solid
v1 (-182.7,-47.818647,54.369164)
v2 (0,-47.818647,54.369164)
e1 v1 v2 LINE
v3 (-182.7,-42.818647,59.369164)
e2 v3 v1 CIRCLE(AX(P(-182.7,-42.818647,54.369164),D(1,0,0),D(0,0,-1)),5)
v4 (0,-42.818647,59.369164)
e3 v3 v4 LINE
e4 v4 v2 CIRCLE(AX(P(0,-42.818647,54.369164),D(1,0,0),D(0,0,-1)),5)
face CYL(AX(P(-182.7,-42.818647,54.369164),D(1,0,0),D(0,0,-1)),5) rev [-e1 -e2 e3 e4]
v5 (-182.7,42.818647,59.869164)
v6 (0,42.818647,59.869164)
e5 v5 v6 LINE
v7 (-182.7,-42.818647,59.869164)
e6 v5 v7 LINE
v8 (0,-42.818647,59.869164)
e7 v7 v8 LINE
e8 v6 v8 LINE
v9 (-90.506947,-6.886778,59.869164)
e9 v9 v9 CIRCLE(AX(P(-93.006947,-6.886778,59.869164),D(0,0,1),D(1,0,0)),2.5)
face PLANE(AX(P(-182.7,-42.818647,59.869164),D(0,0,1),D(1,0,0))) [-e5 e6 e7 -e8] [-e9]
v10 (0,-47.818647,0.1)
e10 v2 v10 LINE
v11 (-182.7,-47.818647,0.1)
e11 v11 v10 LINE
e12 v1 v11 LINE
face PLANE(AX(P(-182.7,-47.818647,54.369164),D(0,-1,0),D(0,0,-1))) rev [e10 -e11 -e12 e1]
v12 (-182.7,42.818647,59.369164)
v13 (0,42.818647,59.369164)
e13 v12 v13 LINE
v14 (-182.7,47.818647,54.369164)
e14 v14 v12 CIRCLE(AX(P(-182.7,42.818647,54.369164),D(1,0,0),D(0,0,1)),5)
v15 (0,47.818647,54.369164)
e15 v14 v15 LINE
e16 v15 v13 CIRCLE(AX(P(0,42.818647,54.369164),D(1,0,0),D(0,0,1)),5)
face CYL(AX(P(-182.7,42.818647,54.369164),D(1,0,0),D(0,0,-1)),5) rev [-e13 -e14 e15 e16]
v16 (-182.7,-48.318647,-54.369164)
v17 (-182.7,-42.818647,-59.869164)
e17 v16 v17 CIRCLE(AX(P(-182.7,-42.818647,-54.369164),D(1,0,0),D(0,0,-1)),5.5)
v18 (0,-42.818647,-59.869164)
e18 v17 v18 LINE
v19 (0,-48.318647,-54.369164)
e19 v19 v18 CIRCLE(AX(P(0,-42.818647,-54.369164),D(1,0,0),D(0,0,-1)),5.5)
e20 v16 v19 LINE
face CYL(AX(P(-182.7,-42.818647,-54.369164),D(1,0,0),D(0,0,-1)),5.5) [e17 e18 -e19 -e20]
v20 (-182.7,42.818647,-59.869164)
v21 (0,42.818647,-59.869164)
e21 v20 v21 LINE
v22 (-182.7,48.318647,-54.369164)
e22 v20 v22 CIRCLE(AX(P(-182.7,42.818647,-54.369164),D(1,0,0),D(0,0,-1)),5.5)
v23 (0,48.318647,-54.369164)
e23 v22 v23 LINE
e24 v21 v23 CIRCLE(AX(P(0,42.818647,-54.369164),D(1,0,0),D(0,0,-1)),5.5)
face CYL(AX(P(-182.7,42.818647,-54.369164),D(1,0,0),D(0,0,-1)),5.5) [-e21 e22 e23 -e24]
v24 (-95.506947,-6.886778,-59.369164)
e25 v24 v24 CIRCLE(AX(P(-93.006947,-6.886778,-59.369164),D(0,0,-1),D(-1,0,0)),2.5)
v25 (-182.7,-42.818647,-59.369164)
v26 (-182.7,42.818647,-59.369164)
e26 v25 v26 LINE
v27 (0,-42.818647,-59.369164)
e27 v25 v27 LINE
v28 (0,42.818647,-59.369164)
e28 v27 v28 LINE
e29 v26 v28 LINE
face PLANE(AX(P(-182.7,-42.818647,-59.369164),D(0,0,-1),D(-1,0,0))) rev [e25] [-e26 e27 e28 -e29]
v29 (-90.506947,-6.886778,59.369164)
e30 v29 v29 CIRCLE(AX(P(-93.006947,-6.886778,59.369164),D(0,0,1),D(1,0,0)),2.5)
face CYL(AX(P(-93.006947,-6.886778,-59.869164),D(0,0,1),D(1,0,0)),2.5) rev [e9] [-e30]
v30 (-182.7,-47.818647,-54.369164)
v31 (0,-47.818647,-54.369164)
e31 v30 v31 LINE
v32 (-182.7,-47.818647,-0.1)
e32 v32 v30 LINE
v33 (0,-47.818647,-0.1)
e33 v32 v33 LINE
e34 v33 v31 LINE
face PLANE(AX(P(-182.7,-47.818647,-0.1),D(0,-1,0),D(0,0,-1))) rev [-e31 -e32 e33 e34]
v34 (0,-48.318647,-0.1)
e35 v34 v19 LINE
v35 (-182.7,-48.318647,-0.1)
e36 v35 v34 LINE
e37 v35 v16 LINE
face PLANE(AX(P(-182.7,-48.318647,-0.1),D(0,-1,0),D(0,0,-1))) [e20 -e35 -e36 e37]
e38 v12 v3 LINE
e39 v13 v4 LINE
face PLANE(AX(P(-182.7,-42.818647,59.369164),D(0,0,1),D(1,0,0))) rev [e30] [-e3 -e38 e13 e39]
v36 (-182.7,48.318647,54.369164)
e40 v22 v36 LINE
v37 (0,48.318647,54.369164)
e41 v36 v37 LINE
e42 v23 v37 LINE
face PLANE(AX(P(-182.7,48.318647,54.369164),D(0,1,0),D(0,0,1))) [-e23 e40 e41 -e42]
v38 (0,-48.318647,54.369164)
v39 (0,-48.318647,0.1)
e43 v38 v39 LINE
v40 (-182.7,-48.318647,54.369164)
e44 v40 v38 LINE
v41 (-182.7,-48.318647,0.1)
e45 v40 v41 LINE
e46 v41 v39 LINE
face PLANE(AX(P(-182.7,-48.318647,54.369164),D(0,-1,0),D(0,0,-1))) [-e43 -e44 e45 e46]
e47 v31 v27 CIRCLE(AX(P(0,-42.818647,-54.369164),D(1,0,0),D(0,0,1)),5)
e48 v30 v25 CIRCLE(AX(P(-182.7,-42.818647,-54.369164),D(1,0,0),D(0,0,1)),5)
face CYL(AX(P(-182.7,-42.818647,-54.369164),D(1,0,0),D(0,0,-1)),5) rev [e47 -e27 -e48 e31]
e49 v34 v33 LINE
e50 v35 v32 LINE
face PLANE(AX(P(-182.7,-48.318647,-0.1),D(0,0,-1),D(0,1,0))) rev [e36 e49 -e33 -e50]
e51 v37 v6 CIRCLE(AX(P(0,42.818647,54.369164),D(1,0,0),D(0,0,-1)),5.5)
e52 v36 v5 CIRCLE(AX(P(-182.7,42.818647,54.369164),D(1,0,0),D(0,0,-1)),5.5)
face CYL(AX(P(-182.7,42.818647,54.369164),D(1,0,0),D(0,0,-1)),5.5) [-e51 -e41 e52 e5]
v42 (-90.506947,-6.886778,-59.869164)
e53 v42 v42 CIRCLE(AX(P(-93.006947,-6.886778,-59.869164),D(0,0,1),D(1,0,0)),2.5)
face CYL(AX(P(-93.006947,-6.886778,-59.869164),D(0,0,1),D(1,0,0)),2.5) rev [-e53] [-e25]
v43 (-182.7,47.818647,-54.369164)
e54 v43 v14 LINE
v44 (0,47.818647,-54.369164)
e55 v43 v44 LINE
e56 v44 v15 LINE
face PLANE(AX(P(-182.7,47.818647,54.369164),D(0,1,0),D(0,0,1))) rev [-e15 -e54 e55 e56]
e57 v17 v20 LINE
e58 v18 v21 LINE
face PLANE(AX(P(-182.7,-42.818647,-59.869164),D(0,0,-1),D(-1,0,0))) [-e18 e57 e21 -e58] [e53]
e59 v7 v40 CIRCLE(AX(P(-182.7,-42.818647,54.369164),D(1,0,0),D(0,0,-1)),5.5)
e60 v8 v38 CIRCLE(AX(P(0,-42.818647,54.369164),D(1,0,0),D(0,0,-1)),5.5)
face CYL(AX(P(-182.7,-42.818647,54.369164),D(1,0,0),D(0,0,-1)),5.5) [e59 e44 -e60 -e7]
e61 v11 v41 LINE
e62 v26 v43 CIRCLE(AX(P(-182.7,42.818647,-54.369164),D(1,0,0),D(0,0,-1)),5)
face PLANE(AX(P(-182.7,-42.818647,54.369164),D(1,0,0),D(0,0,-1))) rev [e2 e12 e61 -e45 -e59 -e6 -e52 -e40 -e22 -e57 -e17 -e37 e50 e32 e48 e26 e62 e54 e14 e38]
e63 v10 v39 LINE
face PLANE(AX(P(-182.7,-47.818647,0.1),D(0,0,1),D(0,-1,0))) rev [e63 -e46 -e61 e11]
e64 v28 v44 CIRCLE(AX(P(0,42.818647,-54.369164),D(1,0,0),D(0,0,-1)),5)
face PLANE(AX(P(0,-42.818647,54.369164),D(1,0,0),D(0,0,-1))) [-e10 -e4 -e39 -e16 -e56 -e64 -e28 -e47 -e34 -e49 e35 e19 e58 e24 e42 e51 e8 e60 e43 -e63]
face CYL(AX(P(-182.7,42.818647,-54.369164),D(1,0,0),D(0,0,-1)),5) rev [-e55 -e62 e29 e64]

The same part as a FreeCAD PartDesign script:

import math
import FreeCAD as App
import Part
import Sketcher
Q = App.Units.Quantity

doc = App.newDocument("Part")
body = doc.addObject("PartDesign::Body", "Body")

sketch1 = body.newObject("Sketcher::SketchObject", "Sketch")
sketch1.AttachmentSupport = (doc.getObject("YZ_Plane"), [""])
sketch1.MapMode = "FlatFace"
sketch1.addGeometry(Part.LineSegment(App.Vector(-47.8, -54.4, 0), App.Vector(-47.8, -0.1, 0)), False)
sketch1.addGeometry(Part.LineSegment(App.Vector(-47.8, -0.1, 0), App.Vector(-48.3, -0.1, 0)), False)
sketch1.addGeometry(Part.LineSegment(App.Vector(-48.3, -0.1, 0), App.Vector(-48.3, -54.4, 0)), False)
sketch1.addGeometry(Part.ArcOfCircle(Part.Circle(App.Vector(-42.8, -54.4, 0), App.Vector(0, 0, 1), 5.5), math.radians(180), math.radians(270)), False)
sketch1.addGeometry(Part.LineSegment(App.Vector(-42.8, -59.9, 0), App.Vector(42.8, -59.9, 0)), False)
sketch1.addGeometry(Part.ArcOfCircle(Part.Circle(App.Vector(42.8, -54.4, 0), App.Vector(0, 0, 1), 5.5), math.radians(-90), math.radians(0)), False)
sketch1.addGeometry(Part.LineSegment(App.Vector(48.3, -54.4, 0), App.Vector(48.3, 54.4, 0)), False)
sketch1.addGeometry(Part.ArcOfCircle(Part.Circle(App.Vector(42.8, 54.4, 0), App.Vector(0, 0, 1), 5.5), math.radians(0), math.radians(90)), False)
sketch1.addGeometry(Part.LineSegment(App.Vector(42.8, 59.9, 0), App.Vector(-42.8, 59.9, 0)), False)
sketch1.addGeometry(Part.ArcOfCircle(Part.Circle(App.Vector(-42.8, 54.4, 0), App.Vector(0, 0, 1), 5.5), math.radians(90), math.radians(180)), False)
sketch1.addGeometry(Part.LineSegment(App.Vector(-48.3, 54.4, 0), App.Vector(-48.3, 0.1, 0)), False)
sketch1.addGeometry(Part.LineSegment(App.Vector(-48.3, 0.1, 0), App.Vector(-47.8, 0.1, 0)), False)
sketch1.addGeometry(Part.LineSegment(App.Vector(-47.8, 0.1, 0), App.Vector(-47.8, 54.4, 0)), False)
sketch1.addGeometry(Part.ArcOfCircle(Part.Circle(App.Vector(-42.8, 54.4, 0), App.Vector(0, 0, 1), 5), math.radians(90), math.radians(180)), False)
sketch1.addGeometry(Part.LineSegment(App.Vector(-42.8, 59.4, 0), App.Vector(42.8, 59.4, 0)), False)
sketch1.addGeometry(Part.ArcOfCircle(Part.Circle(App.Vector(42.8, 54.4, 0), App.Vector(0, 0, 1), 5), math.radians(0), math.radians(90)), False)
sketch1.addGeometry(Part.LineSegment(App.Vector(47.8, 54.4, 0), App.Vector(47.8, -54.4, 0)), False)
sketch1.addGeometry(Part.ArcOfCircle(Part.Circle(App.Vector(42.8, -54.4, 0), App.Vector(0, 0, 1), 5), math.radians(-90), math.radians(0)), False)
sketch1.addGeometry(Part.LineSegment(App.Vector(42.8, -59.4, 0), App.Vector(-42.8, -59.4, 0)), False)
sketch1.addGeometry(Part.ArcOfCircle(Part.Circle(App.Vector(-42.8, -54.4, 0), App.Vector(0, 0, 1), 5), math.radians(180), math.radians(270)), False)
sketch1.addConstraint(Sketcher.Constraint("Coincident", 0, 2, 1, 1))
sketch1.addConstraint(Sketcher.Constraint("Coincident", 1, 2, 2, 1))
sketch1.addConstraint(Sketcher.Constraint("Tangent", 2, 2, 3, 1))
sketch1.addConstraint(Sketcher.Constraint("Tangent", 3, 2, 4, 1))
sketch1.addConstraint(Sketcher.Constraint("Tangent", 4, 2, 5, 1))
sketch1.addConstraint(Sketcher.Constraint("Tangent", 5, 2, 6, 1))
sketch1.addConstraint(Sketcher.Constraint("Tangent", 6, 2, 7, 1))
sketch1.addConstraint(Sketcher.Constraint("Tangent", 7, 2, 8, 1))
sketch1.addConstraint(Sketcher.Constraint("Tangent", 8, 2, 9, 1))
sketch1.addConstraint(Sketcher.Constraint("Tangent", 9, 2, 10, 1))
sketch1.addConstraint(Sketcher.Constraint("Coincident", 10, 2, 11, 1))
sketch1.addConstraint(Sketcher.Constraint("Coincident", 11, 2, 12, 1))
sketch1.addConstraint(Sketcher.Constraint("Tangent", 12, 2, 13, 2))
sketch1.addConstraint(Sketcher.Constraint("Tangent", 13, 1, 14, 1))
sketch1.addConstraint(Sketcher.Constraint("Tangent", 14, 2, 15, 2))
sketch1.addConstraint(Sketcher.Constraint("Tangent", 15, 1, 16, 1))
sketch1.addConstraint(Sketcher.Constraint("Tangent", 16, 2, 17, 2))
sketch1.addConstraint(Sketcher.Constraint("Tangent", 17, 1, 18, 1))
sketch1.addConstraint(Sketcher.Constraint("Tangent", 18, 2, 19, 2))
sketch1.addConstraint(Sketcher.Constraint("Tangent", 19, 1, 0, 1))
sketch1.addConstraint(Sketcher.Constraint("Vertical", 0))
sketch1.addConstraint(Sketcher.Constraint("Horizontal", 1))
sketch1.addConstraint(Sketcher.Constraint("Vertical", 2))
sketch1.addConstraint(Sketcher.Constraint("Horizontal", 4))
sketch1.addConstraint(Sketcher.Constraint("Vertical", 6))
sketch1.addConstraint(Sketcher.Constraint("Horizontal", 8))
sketch1.addConstraint(Sketcher.Constraint("Vertical", 10))
sketch1.addConstraint(Sketcher.Constraint("Horizontal", 11))
sketch1.addConstraint(Sketcher.Constraint("Vertical", 12))
sketch1.addConstraint(Sketcher.Constraint("Horizontal", 14))
sketch1.addConstraint(Sketcher.Constraint("Vertical", 16))
sketch1.addConstraint(Sketcher.Constraint("Horizontal", 18))
sketch1.addConstraint(Sketcher.Constraint("Coincident", 13, 3, 9, 3))
sketch1.addConstraint(Sketcher.Constraint("Coincident", 15, 3, 7, 3))
sketch1.addConstraint(Sketcher.Constraint("Coincident", 17, 3, 5, 3))
sketch1.addConstraint(Sketcher.Constraint("Coincident", 19, 3, 3, 3))
sketch1.addConstraint(Sketcher.Constraint("Equal", 3, 5))
sketch1.addConstraint(Sketcher.Constraint("Equal", 5, 7))
sketch1.addConstraint(Sketcher.Constraint("Equal", 7, 9))
sketch1.addConstraint(Sketcher.Constraint("Symmetric", 3, 3, 7, 3, -1, 1))
sketch1.addConstraint(Sketcher.Constraint("Symmetric", 1, 2, 10, 2, -1))
sketch1.addConstraint(Sketcher.Constraint("Radius", 13, Q("5 mm")))
sketch1.addConstraint(Sketcher.Constraint("Radius", 3, Q("5.5 mm")))
sketch1.addConstraint(Sketcher.Constraint("DistanceY", 0, 2, -1, 1, Q("0.1 mm")))
sketch1.addConstraint(Sketcher.Constraint("DistanceY", 6, 1, 6, 2, Q("108.738328 mm")))
sketch1.addConstraint(Sketcher.Constraint("DistanceX", 4, 1, 4, 2, Q("85.637293 mm")))
pad1 = body.newObject("PartDesign::Pad", "Pad")
pad1.Profile = sketch1
pad1.Length = 182.7
pad1.Reversed = True

sketch2 = body.newObject("Sketcher::SketchObject", "Sketch001")
sketch2.AttachmentSupport = (doc.getObject("XY_Plane"), [""])
sketch2.MapMode = "FlatFace"
sketch2.AttachmentOffset = App.Placement(App.Vector(0, 0, 59.869164), App.Rotation())
sketch2.addGeometry(Part.Circle(App.Vector(-93, -6.9, 0), App.Vector(0, 0, 1), 2.5), False)
sketch2.addConstraint(Sketcher.Constraint("Diameter", 0, Q("5 mm")))
sketch2.addConstraint(Sketcher.Constraint("DistanceY", 0, 3, -1, 1, Q("6.886778 mm")))
sketch2.addConstraint(Sketcher.Constraint("DistanceX", 0, 3, -1, 1, Q("93.006947 mm")))
pocket1 = body.newObject("PartDesign::Pocket", "Pocket")
pocket1.Profile = sketch2
pocket1.Type = "ThroughAll"

doc.recompute()
